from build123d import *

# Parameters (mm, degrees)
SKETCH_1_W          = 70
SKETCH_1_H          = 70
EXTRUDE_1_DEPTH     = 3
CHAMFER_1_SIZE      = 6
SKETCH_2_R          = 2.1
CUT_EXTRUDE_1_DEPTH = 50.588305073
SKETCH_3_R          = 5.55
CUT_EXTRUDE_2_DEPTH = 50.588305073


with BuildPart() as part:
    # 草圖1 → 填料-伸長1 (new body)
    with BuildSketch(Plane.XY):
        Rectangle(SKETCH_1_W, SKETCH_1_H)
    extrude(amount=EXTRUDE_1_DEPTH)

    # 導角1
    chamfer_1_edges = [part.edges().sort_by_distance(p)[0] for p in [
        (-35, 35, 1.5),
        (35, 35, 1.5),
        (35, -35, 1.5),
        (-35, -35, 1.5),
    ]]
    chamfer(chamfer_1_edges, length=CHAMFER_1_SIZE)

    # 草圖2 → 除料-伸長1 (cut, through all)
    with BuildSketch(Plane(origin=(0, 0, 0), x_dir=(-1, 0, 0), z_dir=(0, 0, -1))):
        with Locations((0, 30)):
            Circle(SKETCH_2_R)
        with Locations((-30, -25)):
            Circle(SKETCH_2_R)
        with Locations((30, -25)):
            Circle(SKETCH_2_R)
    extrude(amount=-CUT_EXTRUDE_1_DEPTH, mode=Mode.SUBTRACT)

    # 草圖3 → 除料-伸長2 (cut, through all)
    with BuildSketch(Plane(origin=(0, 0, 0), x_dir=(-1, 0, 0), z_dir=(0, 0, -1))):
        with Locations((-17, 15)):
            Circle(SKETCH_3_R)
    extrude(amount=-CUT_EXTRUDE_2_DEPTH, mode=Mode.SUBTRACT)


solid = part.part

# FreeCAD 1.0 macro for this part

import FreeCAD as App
import Part
import Sketcher
Q = App.Units.Quantity


def edges_at(feature, points):
    """Names of the edges that pass closest to the given points."""
    edges = feature.Shape.Edges
    near = lambda p: min(range(len(edges)), key=lambda i: edges[i].distToShape(Part.Vertex(*p))[0])
    return sorted({f"Edge{near(p) + 1}" for p in points})


def add_polygon(sketch, points):
    """Adds a closed chain of lines whose ends are joined by coincident constraints."""
    first, n = sketch.GeometryCount, len(points)
    for a, b in zip(points, points[1:] + points[:1]):
        sketch.addGeometry(Part.LineSegment(App.Vector(*a, 0), App.Vector(*b, 0)), False)
    for i in range(n):
        sketch.addConstraint(Sketcher.Constraint("Coincident", first + i, 2, first + (i + 1) % n, 1))

doc = App.newDocument("Part")
params = doc.addObject("Spreadsheet::Sheet", "Params")
for row, (alias, value) in enumerate([
    ("sketch1_width", "70 mm"),
    ("pad1_length", "3 mm"),
    ("chamfer_size", "6 mm"),
    ("sketch2_diameter", "4.2 mm"),
    ("sketch3_diameter", "11.1 mm"),
], start=1):
    params.set(f"A{row}", alias)
    params.set(f"B{row}", "=" + value)
    params.setAlias(f"B{row}", alias)

body = doc.addObject("PartDesign::Body", "Body")

# Sketch on XY plane
sketch1 = doc.addObject("Sketcher::SketchObject", "Sketch")
body.addObject(sketch1)
sketch1.AttachmentSupport = (doc.XY_Plane, [""])
sketch1.MapMode = "FlatFace"
add_polygon(sketch1, [(-35, 35), (-35, -35), (35, -35), (35, 35)])  # lines 0-3
sketch1.addConstraint([
    Sketcher.Constraint("Vertical", 0),
    Sketcher.Constraint("Horizontal", 1),
    Sketcher.Constraint("Vertical", 2),
    Sketcher.Constraint("Horizontal", 3),
    Sketcher.Constraint("Symmetric", 0, 2, 2, 2, -1, 1),
    Sketcher.Constraint("Equal", 3, 0),
    Sketcher.Constraint("DistanceX", 1, 1, 1, 2, Q("70 mm")),
])
sketch1.setExpression("Constraints[10]", "Params.sketch1_width")
pad1 = doc.addObject("PartDesign::Pad", "Pad")
body.addObject(pad1)
pad1.Profile = sketch1
pad1.setExpression("Length", "Params.pad1_length")
doc.recompute()

chamfer = doc.addObject("PartDesign::Chamfer", "Chamfer")
body.addObject(chamfer)
chamfer.Base = (pad1, edges_at(pad1, [
    (-35, 35, 1.5),
    (35, 35, 1.5),
    (35, -35, 1.5),
    (-35, -35, 1.5),
]))
chamfer.setExpression("Size", "Params.chamfer_size")

# Sketch on XY plane
sketch2 = doc.addObject("Sketcher::SketchObject", "Sketch001")
body.addObject(sketch2)
sketch2.AttachmentSupport = (doc.XY_Plane, [""])
sketch2.MapMode = "FlatFace"
sketch2.addGeometry([
    Part.Circle(App.Vector(0, 30, 0), App.Vector(0, 0, 1), 2.1),
    Part.Circle(App.Vector(30, -25, 0), App.Vector(0, 0, 1), 2.1),
    Part.Circle(App.Vector(-30, -25, 0), App.Vector(0, 0, 1), 2.1),
], False)
sketch2.addConstraint([
    Sketcher.Constraint("Equal", 0, 1),
    Sketcher.Constraint("Equal", 1, 2),
    Sketcher.Constraint("Symmetric", 1, 3, 2, 3, -2),
    Sketcher.Constraint("PointOnObject", 0, 3, -2),
    Sketcher.Constraint("Diameter", 0, Q("4.2 mm")),
    Sketcher.Constraint("DistanceY", -1, 1, 0, 3, Q("30 mm")),
    Sketcher.Constraint("DistanceX", -1, 1, 1, 3, Q("30 mm")),
    Sketcher.Constraint("DistanceY", 1, 3, -1, 1, Q("25 mm")),
])
sketch2.setExpression("Constraints[4]", "Params.sketch2_diameter")
pocket1 = doc.addObject("PartDesign::Pocket", "Pocket")
body.addObject(pocket1)
pocket1.Profile = sketch2
pocket1.Type = "ThroughAll"
pocket1.Reversed = True

# Sketch on XY plane
sketch3 = doc.addObject("Sketcher::SketchObject", "Sketch002")
body.addObject(sketch3)
sketch3.AttachmentSupport = (doc.XY_Plane, [""])
sketch3.MapMode = "FlatFace"
sketch3.addGeometry(Part.Circle(App.Vector(17, 15, 0), App.Vector(0, 0, 1), 5.55), False)
sketch3.addConstraint([
    Sketcher.Constraint("Diameter", 0, Q("11.1 mm")),
    Sketcher.Constraint("DistanceX", -1, 1, 0, 3, Q("17 mm")),
    Sketcher.Constraint("DistanceY", -1, 1, 0, 3, Q("15 mm")),
])
sketch3.setExpression("Constraints[0]", "Params.sketch3_diameter")
pocket2 = doc.addObject("PartDesign::Pocket", "Pocket001")
body.addObject(pocket2)
pocket2.Profile = sketch3
pocket2.Type = "ThroughAll"
pocket2.Reversed = True

doc.recompute()
